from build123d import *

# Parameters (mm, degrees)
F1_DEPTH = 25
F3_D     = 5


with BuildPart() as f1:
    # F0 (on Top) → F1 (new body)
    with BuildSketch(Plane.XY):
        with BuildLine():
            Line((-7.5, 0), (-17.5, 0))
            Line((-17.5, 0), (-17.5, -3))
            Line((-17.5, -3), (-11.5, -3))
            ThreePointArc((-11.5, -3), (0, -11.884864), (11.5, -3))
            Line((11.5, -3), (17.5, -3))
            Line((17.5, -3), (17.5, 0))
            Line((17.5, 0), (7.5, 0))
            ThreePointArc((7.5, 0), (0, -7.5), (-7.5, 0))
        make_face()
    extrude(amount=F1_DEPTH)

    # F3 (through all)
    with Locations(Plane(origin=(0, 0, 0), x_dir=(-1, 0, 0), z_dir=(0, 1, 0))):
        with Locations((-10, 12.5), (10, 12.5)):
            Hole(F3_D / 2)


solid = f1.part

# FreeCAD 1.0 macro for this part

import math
import FreeCAD as App
import Part
import Sketcher
from FreeCAD import Vector

doc = App.newDocument("Part")
body = doc.addObject("PartDesign::Body", "Body")

# Sketch on XY plane
sketch1 = doc.addObject("Sketcher::SketchObject", "Sketch")
body.addObject(sketch1)
sketch1.AttachmentSupport = (doc.XY_Plane, [""])
sketch1.MapMode = "FlatFace"
sketch1.addGeometry(Part.LineSegment(Vector(-7.5, 0, 0), Vector(-17.5, 0, 0)), False)
sketch1.addGeometry(Part.LineSegment(Vector(-17.5, 0, 0), Vector(-17.5, -3, 0)), False)
sketch1.addGeometry(Part.LineSegment(Vector(-17.5, -3, 0), Vector(-11.5, -3, 0)), False)
sketch1.addGeometry(Part.ArcOfCircle(Part.Circle(Vector(0, 0, 0), Vector(0, 0, 1), 11.9), math.radians(-165), math.radians(-15)), False)
sketch1.addGeometry(Part.LineSegment(Vector(11.5, -3, 0), Vector(17.5, -3, 0)), False)
sketch1.addGeometry(Part.LineSegment(Vector(17.5, -3, 0), Vector(17.5, 0, 0)), False)
sketch1.addGeometry(Part.LineSegment(Vector(17.5, 0, 0), Vector(7.5, 0, 0)), False)
sketch1.addGeometry(Part.ArcOfCircle(Part.Circle(Vector(0, 0, 0), Vector(0, 0, 1), 7.5), math.radians(180), math.radians(360)), False)
sketch1.addConstraint(Sketcher.Constraint("Coincident", 0, 2, 1, 1))
sketch1.addConstraint(Sketcher.Constraint("Coincident", 1, 2, 2, 1))
sketch1.addConstraint(Sketcher.Constraint("Coincident", 2, 2, 3, 1))
sketch1.addConstraint(Sketcher.Constraint("Coincident", 3, 2, 4, 1))
sketch1.addConstraint(Sketcher.Constraint("Coincident", 4, 2, 5, 1))
sketch1.addConstraint(Sketcher.Constraint("Coincident", 5, 2, 6, 1))
sketch1.addConstraint(Sketcher.Constraint("Coincident", 6, 2, 7, 2))
sketch1.addConstraint(Sketcher.Constraint("Coincident", 7, 1, 0, 1))
sketch1.addConstraint(Sketcher.Constraint("Horizontal", 0))
sketch1.addConstraint(Sketcher.Constraint("Vertical", 1))
sketch1.addConstraint(Sketcher.Constraint("Horizontal", 2))
sketch1.addConstraint(Sketcher.Constraint("Horizontal", 4))
sketch1.addConstraint(Sketcher.Constraint("Vertical", 5))
sketch1.addConstraint(Sketcher.Constraint("Horizontal", 6))
sketch1.addConstraint(Sketcher.Constraint("Coincident", 3, 3, -1, 1))
sketch1.addConstraint(Sketcher.Constraint("Coincident", 7, 3, -1, 1))
sketch1.addConstraint(Sketcher.Constraint("Symmetric", 0, 2, 5, 2, -1, 1))
sketch1.addConstraint(Sketcher.Constraint("PointOnObject", 0, 2, -1))
sketch1.addConstraint(Sketcher.Constraint("Horizontal", 2, 2, 3, 2))
sketch1.addConstraint(Sketcher.Constraint("Radius", 7, 7.5))
sketch1.addConstraint(Sketcher.Constraint("DistanceX", 0, 2, 0, 1, 10.0))
sketch1.addConstraint(Sketcher.Constraint("DistanceX", 2, 1, 2, 2, 6.0))
sketch1.addConstraint(Sketcher.Constraint("DistanceY", 1, 2, 1, 1, 3.0))
pad1 = doc.addObject("PartDesign::Pad", "Pad")
body.addObject(pad1)
pad1.Profile = sketch1
pad1.Length = 25

# Sketch on XZ plane
sketch2 = doc.addObject("Sketcher::SketchObject", "Sketch001")
body.addObject(sketch2)
sketch2.AttachmentSupport = (doc.XZ_Plane, [""])
sketch2.MapMode = "FlatFace"
sketch2.addGeometry(Part.Circle(Vector(10, 12.5, 0), Vector(0, 0, 1), 2.5), False)
sketch2.addGeometry(Part.Circle(Vector(-10, 12.5, 0), Vector(0, 0, 1), 2.5), False)
sketch2.addConstraint(Sketcher.Constraint("Equal", 0, 1))
sketch2.addConstraint(Sketcher.Constraint("Symmetric", 0, 3, 1, 3, -2))
sketch2.addConstraint(Sketcher.Constraint("Diameter", 0, 5.0))
sketch2.addConstraint(Sketcher.Constraint("DistanceX", -1, 1, 0, 3, 10.0))
sketch2.addConstraint(Sketcher.Constraint("DistanceY", -1, 1, 0, 3, 12.5))
doc.recompute()
hole = doc.addObject("PartDesign::Hole", "Hole")
body.addObject(hole)
hole.Profile = sketch2
hole.ThreadType = "None"
hole.Diameter = 5
hole.DepthType = "ThroughAll"
hole.Reversed = True

doc.recompute()
